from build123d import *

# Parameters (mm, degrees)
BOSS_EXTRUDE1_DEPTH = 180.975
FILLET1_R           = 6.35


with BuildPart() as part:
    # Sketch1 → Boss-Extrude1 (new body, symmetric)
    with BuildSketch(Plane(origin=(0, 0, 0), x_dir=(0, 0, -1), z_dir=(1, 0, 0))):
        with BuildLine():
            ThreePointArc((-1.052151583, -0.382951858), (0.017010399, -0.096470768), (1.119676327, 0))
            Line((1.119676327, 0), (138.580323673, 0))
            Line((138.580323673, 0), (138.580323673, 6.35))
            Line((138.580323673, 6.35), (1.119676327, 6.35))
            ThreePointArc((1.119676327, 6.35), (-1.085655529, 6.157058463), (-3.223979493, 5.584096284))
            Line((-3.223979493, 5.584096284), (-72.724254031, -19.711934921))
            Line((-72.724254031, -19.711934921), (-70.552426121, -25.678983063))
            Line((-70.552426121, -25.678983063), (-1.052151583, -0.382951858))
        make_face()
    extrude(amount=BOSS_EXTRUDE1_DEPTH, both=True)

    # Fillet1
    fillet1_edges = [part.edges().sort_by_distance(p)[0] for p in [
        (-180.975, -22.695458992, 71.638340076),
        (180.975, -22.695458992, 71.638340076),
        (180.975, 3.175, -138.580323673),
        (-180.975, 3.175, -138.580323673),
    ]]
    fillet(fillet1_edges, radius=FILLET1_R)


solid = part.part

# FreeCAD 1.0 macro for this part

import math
import FreeCAD as App
import Part
import Sketcher

V = App.Vector
Q = App.Units.Quantity


def edges_at(feature, points):
    """Names of the edges that pass closest to the given points."""
    edges = feature.Shape.Edges
    near = lambda p: min(range(len(edges)), key=lambda i: edges[i].distToShape(Part.Vertex(*p))[0])
    return sorted({f"Edge{near(p) + 1}" for p in points})

doc = App.newDocument("Part")
params = doc.addObject("Spreadsheet::Sheet", "Params")
for row, (alias, value) in enumerate([
    ("sketch1_radius", "0.5 in"),
    ("sketch1_radius2", "0.25 in"),
    ("pad1_length", "14.25 in"),
    ("fillet_radius", "0.25 in"),
], start=1):
    params.set(f"A{row}", alias)
    params.set(f"B{row}", "=" + value)
    params.setAlias(f"B{row}", alias)

body = doc.addObject("PartDesign::Body", "Body")

sketch1 = doc.addObject("Sketcher::SketchObject", "Sketch")
body.addObject(sketch1)
sketch1.AttachmentSupport = (doc.YZ_Plane, [""])
sketch1.MapMode = "FlatFace"
sketch1.addGeometry([
    Part.ArcOfCircle(Part.Circle(V(-6.35, -1.119676, 0), V(0, 0, 1), 6.35), math.radians(0), math.radians(20)),
    Part.LineSegment(V(0, -1.119676, 0), V(0, -138.580324, 0)),
    Part.LineSegment(V(0, -138.580324, 0), V(6.35, -138.580324, 0)),
    Part.LineSegment(V(6.35, -138.580324, 0), V(6.35, -1.119676, 0)),
    Part.ArcOfCircle(Part.Circle(V(-6.35, -1.119676, 0), V(0, 0, 1), 12.7), math.radians(0), math.radians(20)),
    Part.LineSegment(V(5.584096, 3.223979, 0), V(-19.711935, 72.724254, 0)),
    Part.LineSegment(V(-19.711935, 72.724254, 0), V(-25.678983, 70.552426, 0)),
    Part.LineSegment(V(-25.678983, 70.552426, 0), V(-0.382952, 1.052152, 0)),
], False)
sketch1.addConstraint([
    Sketcher.Constraint("Tangent", 0, 1, 1, 1),
    Sketcher.Constraint("Coincident", 1, 2, 2, 1),
    Sketcher.Constraint("Coincident", 2, 2, 3, 1),
    Sketcher.Constraint("Tangent", 3, 2, 4, 1),
    Sketcher.Constraint("Tangent", 4, 2, 5, 1),
    Sketcher.Constraint("Coincident", 5, 2, 6, 1),
    Sketcher.Constraint("Coincident", 6, 2, 7, 1),
    Sketcher.Constraint("Tangent", 7, 2, 0, 2),
    Sketcher.Constraint("Vertical", 1),
    Sketcher.Constraint("Horizontal", 2),
    Sketcher.Constraint("Vertical", 3),
    Sketcher.Constraint("Coincident", 4, 3, 0, 3),
    Sketcher.Constraint("PointOnObject", 0, 1, -2),
    Sketcher.Constraint("Perpendicular", 5, 6),
    Sketcher.Constraint("Perpendicular", 6, 7),
    Sketcher.Constraint("Radius", 4, Q("0.5 in")),
    Sketcher.Constraint("Radius", 0, Q("0.25 in")),
    Sketcher.Constraint("Angle", 5, Q("110 deg")),
    Sketcher.Constraint("DistanceY", 1, 2, 1, 1, Q("137.460647 mm")),
    Sketcher.Constraint("DistanceY", -1, 1, 4, 2, Q("3.223979 mm")),
    Sketcher.Constraint("DistanceX", 5, 2, 4, 2, Q("25.296031 mm")),
])
sketch1.setExpression("Constraints[15]", "Params.sketch1_radius")
sketch1.setExpression("Constraints[16]", "Params.sketch1_radius2")
pad1 = doc.addObject("PartDesign::Pad", "Pad")
body.addObject(pad1)
pad1.Profile = sketch1
pad1.setExpression("Length", "Params.pad1_length")
pad1.Midplane = True
doc.recompute()

fillet = doc.addObject("PartDesign::Fillet", "Fillet")
body.addObject(fillet)
fillet.Base = (pad1, edges_at(pad1, [
    (-180.975, -22.695, 71.638),
    (180.975, -22.695, 71.638),
    (180.975, 3.175, -138.58),
    (-180.975, 3.175, -138.58),
]))
fillet.setExpression("Radius", "Params.fillet_radius")

doc.recompute()
